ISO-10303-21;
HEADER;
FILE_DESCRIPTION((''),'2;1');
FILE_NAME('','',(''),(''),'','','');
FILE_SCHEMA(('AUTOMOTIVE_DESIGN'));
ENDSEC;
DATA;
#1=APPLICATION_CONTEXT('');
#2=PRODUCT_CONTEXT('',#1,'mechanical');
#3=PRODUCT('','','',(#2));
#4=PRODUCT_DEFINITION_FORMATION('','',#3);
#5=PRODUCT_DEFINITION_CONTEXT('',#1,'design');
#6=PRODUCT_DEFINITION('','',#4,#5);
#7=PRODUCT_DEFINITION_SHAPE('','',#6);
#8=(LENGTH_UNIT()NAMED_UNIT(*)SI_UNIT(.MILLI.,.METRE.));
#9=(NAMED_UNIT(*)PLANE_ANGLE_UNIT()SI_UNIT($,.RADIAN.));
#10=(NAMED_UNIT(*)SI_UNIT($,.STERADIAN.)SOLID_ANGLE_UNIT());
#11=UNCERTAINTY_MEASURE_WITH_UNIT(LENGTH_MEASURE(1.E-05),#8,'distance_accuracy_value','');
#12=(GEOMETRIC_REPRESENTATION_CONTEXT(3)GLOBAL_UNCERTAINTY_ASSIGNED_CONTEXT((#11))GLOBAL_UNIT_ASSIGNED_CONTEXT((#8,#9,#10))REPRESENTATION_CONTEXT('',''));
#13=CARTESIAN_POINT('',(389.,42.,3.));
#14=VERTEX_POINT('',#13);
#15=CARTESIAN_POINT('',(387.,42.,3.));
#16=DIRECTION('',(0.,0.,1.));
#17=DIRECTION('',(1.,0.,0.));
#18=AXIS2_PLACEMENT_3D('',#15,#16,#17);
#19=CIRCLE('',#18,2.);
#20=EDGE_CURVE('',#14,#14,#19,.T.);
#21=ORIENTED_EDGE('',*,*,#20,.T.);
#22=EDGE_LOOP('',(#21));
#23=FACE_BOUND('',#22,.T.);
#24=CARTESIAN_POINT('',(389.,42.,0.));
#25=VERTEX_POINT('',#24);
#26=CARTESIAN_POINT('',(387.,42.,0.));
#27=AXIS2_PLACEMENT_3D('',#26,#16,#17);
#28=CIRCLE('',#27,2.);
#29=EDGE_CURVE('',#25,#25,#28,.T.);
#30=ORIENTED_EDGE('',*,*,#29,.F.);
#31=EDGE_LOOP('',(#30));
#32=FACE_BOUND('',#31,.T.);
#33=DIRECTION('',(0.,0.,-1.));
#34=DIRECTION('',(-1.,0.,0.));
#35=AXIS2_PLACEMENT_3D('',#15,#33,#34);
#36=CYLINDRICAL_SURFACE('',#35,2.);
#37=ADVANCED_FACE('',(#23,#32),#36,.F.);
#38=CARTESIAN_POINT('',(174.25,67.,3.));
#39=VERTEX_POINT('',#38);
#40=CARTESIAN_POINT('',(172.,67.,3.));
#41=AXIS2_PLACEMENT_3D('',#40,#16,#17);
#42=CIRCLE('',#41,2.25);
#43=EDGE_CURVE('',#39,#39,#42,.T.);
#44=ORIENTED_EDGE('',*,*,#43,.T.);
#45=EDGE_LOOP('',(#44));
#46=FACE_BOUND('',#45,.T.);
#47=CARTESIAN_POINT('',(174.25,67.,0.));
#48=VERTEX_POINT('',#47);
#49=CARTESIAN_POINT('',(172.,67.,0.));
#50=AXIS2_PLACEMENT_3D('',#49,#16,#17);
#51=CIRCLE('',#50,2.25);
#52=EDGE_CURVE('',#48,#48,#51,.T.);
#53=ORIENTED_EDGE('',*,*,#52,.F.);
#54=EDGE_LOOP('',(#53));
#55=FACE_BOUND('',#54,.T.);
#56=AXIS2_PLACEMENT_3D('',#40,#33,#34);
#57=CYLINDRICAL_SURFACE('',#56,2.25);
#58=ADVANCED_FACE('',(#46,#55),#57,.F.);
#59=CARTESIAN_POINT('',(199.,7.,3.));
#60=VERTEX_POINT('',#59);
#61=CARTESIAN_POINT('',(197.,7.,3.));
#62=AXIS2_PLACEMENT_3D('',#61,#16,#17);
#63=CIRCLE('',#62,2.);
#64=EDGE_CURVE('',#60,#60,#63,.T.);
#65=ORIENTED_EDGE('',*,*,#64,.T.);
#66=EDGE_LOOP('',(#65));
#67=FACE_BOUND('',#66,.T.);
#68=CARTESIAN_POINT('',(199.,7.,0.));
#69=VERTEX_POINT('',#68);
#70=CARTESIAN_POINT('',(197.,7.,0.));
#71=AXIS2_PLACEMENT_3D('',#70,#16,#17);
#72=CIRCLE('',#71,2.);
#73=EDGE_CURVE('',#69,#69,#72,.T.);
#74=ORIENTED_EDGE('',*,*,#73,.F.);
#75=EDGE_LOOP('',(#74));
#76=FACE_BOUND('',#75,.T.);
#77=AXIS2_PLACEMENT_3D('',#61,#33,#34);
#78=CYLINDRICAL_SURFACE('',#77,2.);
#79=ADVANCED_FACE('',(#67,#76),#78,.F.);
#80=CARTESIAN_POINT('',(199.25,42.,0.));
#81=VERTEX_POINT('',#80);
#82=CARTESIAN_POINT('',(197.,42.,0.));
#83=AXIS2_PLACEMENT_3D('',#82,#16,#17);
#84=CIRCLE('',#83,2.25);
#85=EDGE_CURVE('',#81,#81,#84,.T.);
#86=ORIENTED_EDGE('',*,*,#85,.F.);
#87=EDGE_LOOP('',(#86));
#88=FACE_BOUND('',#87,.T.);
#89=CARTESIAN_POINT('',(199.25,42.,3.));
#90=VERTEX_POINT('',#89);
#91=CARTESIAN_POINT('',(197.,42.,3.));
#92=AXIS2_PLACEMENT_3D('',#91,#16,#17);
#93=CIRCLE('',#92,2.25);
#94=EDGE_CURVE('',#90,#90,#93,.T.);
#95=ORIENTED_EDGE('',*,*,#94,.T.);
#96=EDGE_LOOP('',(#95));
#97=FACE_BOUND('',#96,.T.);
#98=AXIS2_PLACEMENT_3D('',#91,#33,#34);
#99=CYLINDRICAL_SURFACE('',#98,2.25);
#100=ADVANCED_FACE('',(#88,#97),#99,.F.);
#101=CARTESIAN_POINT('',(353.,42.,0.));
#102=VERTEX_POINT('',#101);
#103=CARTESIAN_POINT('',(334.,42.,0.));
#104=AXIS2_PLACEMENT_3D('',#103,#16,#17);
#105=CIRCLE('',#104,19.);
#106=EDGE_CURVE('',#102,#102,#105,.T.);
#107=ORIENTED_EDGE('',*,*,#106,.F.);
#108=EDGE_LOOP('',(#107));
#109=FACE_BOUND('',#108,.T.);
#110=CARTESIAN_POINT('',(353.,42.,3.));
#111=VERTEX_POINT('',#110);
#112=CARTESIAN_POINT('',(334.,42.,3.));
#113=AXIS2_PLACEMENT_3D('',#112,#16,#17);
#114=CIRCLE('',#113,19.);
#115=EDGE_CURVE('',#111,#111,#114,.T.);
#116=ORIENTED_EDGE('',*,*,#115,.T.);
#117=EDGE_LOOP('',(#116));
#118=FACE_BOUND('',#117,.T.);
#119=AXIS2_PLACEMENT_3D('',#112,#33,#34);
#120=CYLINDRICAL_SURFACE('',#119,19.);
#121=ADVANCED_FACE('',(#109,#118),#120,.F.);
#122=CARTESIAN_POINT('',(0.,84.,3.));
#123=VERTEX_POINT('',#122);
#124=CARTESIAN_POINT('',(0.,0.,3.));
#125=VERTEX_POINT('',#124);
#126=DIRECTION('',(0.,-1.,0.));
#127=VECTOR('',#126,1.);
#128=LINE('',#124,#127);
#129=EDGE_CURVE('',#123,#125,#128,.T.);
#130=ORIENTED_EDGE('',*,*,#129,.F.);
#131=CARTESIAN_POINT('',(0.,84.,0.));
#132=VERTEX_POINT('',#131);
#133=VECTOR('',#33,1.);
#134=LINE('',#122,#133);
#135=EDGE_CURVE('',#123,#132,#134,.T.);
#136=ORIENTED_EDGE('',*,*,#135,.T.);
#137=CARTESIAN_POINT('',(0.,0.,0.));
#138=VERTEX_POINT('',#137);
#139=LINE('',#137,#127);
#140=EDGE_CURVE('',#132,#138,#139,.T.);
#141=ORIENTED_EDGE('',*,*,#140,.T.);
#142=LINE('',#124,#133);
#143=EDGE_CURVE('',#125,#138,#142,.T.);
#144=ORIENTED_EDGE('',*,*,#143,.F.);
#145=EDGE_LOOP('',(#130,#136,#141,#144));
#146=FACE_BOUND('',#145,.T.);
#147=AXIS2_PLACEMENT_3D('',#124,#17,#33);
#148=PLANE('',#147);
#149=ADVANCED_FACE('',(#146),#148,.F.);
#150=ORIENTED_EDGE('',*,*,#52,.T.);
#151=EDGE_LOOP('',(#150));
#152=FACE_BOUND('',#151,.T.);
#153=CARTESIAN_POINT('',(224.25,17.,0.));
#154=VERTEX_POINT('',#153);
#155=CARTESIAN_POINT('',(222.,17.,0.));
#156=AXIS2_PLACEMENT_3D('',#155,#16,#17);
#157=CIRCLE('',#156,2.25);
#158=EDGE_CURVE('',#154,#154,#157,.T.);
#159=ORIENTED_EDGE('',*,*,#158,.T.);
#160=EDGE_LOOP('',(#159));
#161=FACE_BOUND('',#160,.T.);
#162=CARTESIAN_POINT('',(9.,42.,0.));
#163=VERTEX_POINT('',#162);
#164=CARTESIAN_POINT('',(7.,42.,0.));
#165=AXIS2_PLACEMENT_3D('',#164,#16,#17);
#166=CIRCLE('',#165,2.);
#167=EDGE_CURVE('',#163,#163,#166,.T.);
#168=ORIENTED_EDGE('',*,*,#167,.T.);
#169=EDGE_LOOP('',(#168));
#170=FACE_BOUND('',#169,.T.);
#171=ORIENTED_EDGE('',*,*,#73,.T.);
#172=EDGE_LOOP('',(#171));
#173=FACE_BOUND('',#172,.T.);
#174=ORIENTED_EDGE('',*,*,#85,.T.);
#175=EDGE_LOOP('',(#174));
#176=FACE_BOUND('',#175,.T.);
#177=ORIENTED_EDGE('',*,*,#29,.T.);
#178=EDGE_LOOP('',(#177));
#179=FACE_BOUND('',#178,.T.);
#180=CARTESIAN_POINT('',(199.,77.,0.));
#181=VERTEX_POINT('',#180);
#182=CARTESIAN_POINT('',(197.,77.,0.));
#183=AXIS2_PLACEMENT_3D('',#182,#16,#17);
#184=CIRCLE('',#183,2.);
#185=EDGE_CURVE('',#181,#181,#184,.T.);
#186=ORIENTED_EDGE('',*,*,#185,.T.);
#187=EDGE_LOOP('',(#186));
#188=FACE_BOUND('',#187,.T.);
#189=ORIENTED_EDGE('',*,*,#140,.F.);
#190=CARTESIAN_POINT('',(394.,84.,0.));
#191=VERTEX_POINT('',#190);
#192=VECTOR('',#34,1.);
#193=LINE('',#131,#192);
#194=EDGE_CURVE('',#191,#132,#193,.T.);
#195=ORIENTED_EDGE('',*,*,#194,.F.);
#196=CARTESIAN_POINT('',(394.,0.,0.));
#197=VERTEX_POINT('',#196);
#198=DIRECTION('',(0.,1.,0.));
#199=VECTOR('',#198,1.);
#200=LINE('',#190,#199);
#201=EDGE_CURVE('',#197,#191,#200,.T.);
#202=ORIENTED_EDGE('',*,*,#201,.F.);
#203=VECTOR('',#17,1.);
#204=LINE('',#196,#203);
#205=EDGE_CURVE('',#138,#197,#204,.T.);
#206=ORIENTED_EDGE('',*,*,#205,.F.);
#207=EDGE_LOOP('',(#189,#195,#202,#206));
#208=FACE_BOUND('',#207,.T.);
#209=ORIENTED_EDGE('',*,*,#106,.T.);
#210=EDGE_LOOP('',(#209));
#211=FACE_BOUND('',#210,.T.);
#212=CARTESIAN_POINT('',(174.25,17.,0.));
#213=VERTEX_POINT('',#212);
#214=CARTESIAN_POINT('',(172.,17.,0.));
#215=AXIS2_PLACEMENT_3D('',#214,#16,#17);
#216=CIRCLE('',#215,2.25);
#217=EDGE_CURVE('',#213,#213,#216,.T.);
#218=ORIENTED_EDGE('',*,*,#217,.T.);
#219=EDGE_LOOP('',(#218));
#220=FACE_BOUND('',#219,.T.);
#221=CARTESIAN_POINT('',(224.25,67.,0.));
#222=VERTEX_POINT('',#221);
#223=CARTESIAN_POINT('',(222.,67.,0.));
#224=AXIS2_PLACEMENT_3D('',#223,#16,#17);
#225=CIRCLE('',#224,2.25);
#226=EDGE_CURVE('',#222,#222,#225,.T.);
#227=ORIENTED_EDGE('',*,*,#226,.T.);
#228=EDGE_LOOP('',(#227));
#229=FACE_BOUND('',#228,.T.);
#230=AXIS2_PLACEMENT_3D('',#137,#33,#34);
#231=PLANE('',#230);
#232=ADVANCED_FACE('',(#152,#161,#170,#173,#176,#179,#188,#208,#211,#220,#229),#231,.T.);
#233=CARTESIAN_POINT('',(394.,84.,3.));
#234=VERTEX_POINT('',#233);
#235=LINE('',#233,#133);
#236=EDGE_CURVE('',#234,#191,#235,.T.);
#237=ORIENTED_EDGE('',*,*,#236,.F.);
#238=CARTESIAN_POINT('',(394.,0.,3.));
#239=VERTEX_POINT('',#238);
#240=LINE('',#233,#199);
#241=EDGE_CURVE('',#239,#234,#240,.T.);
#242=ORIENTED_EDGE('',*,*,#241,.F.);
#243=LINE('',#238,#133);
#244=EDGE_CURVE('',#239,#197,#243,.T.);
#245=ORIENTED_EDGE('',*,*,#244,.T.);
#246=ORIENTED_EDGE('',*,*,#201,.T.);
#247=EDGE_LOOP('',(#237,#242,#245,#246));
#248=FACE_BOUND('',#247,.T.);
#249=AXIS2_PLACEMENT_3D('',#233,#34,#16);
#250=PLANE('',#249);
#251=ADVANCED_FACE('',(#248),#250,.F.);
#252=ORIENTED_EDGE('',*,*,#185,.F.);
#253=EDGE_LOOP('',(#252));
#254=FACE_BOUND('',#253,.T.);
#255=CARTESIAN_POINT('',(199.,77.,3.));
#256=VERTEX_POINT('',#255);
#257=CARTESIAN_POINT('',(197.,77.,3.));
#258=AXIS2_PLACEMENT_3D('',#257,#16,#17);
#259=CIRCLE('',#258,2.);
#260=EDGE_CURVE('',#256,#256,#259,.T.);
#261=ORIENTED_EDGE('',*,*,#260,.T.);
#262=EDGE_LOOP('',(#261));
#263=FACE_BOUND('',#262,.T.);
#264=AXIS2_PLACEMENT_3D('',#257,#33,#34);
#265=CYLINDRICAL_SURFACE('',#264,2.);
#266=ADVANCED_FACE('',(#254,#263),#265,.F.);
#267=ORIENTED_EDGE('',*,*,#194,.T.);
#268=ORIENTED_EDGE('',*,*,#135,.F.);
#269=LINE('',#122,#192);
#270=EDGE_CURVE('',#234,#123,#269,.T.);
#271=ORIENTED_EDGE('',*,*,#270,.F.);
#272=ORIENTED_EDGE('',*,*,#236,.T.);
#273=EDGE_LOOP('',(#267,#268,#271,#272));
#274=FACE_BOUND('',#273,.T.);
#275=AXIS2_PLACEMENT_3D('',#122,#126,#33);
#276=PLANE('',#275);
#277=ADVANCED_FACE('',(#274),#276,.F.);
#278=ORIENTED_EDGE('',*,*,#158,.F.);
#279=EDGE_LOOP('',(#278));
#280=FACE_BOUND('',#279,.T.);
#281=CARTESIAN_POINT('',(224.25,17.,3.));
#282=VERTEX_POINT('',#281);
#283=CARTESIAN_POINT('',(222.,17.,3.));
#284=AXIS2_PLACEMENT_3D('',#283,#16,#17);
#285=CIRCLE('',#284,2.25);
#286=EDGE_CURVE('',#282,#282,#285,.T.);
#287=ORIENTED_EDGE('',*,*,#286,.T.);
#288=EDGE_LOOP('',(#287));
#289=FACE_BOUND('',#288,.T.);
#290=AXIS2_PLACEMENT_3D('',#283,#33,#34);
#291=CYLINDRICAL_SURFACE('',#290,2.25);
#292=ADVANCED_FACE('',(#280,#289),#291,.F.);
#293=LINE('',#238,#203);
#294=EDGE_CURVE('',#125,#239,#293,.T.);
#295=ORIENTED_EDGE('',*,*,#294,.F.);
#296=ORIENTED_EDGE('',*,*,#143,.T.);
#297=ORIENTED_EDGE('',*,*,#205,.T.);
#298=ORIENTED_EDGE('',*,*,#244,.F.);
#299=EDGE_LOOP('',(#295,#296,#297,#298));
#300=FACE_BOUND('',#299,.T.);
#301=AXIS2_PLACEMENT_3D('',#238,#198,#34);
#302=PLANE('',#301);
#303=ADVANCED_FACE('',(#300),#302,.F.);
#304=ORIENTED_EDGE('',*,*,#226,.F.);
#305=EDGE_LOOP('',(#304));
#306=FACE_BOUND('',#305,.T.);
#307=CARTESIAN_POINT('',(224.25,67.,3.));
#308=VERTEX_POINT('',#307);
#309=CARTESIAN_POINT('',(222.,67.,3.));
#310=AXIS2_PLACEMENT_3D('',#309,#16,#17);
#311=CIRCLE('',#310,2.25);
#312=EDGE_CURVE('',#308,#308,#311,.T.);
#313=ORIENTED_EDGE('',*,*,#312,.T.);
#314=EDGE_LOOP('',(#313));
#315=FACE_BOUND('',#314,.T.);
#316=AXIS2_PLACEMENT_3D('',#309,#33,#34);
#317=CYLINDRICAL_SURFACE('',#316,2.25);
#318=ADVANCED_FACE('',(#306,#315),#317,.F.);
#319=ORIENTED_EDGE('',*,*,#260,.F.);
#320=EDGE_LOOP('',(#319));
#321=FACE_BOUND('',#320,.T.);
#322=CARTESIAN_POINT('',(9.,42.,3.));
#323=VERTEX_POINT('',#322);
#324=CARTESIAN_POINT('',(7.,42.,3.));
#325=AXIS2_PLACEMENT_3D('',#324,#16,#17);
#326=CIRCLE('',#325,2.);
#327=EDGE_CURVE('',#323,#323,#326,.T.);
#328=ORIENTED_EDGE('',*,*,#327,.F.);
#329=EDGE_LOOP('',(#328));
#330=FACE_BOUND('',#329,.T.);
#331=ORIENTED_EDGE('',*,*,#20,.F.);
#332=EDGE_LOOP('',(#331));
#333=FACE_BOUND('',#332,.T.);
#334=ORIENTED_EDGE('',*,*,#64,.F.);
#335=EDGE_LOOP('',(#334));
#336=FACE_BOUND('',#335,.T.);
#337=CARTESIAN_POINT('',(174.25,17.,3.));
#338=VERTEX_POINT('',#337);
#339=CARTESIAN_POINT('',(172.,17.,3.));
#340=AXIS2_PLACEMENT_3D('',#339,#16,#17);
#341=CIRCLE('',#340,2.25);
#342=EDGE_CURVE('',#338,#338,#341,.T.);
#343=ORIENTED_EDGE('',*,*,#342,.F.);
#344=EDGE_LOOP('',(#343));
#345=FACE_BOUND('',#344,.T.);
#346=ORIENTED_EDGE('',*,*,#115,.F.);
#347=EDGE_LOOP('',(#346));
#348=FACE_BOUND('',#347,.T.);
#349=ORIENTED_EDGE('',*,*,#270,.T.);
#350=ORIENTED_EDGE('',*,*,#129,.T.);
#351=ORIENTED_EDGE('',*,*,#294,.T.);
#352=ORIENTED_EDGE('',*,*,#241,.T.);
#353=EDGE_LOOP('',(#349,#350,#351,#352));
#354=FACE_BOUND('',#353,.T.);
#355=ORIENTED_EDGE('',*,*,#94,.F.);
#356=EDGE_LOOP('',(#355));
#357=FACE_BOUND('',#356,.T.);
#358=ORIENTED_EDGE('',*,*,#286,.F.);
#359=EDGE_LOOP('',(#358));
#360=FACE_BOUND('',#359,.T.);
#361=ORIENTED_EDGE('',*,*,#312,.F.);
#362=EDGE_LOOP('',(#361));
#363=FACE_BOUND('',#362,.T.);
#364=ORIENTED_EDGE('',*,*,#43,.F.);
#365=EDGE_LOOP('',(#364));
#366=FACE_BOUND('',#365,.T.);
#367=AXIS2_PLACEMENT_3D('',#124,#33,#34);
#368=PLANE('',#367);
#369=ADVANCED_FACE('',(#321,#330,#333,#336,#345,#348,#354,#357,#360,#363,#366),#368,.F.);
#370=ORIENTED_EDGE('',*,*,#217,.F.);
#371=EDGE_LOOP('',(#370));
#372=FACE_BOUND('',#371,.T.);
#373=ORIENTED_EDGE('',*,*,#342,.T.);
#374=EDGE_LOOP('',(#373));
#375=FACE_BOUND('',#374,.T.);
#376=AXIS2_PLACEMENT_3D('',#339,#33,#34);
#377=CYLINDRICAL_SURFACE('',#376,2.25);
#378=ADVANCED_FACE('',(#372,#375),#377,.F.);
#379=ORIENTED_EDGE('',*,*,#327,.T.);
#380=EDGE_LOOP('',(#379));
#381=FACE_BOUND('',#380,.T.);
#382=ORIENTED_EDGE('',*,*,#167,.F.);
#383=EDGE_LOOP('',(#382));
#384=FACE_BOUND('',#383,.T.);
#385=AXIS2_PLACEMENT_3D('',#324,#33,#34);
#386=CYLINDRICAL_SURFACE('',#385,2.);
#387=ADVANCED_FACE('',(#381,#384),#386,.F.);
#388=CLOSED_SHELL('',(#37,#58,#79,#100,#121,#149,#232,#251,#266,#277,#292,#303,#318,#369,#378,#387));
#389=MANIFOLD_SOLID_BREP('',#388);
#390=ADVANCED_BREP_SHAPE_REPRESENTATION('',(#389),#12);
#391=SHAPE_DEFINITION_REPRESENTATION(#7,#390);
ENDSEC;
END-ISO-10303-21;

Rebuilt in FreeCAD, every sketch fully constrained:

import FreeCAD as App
import Part
import Sketcher

V = App.Vector
Q = App.Units.Quantity

doc = App.newDocument("Part")
body = doc.addObject("PartDesign::Body", "Body")

# Sketch on XY plane
sketch1 = body.newObject("Sketcher::SketchObject", "Sketch")
sketch1.AttachmentSupport = (doc.getObject("XY_Plane"), [""])
sketch1.MapMode = "FlatFace"
sketch1.addGeometry(Part.LineSegment(V(0, 84, 0), V(0, 0, 0)), False)
sketch1.addGeometry(Part.LineSegment(V(0, 0, 0), V(394, 0, 0)), False)
sketch1.addGeometry(Part.LineSegment(V(394, 0, 0), V(394, 84, 0)), False)
sketch1.addGeometry(Part.LineSegment(V(394, 84, 0), V(0, 84, 0)), False)
sketch1.addGeometry(Part.Circle(V(172, 17, 0), V(0, 0, 1), 2.2), False)
sketch1.addGeometry(Part.Circle(V(197, 7, 0), V(0, 0, 1), 2), False)
sketch1.addGeometry(Part.Circle(V(222, 17, 0), V(0, 0, 1), 2.2), False)
sketch1.addGeometry(Part.Circle(V(7, 42, 0), V(0, 0, 1), 2), False)
sketch1.addGeometry(Part.Circle(V(172, 67, 0), V(0, 0, 1), 2.2), False)
sketch1.addGeometry(Part.Circle(V(197, 42, 0), V(0, 0, 1), 2.2), False)
sketch1.addGeometry(Part.Circle(V(334, 42, 0), V(0, 0, 1), 19), False)
sketch1.addGeometry(Part.Circle(V(387, 42, 0), V(0, 0, 1), 2), False)
sketch1.addGeometry(Part.Circle(V(222, 67, 0), V(0, 0, 1), 2.2), False)
sketch1.addGeometry(Part.Circle(V(197, 77, 0), V(0, 0, 1), 2), False)
sketch1.addConstraint(Sketcher.Constraint("Coincident", 0, 2, 1, 1))
sketch1.addConstraint(Sketcher.Constraint("Coincident", 1, 2, 2, 1))
sketch1.addConstraint(Sketcher.Constraint("Coincident", 2, 2, 3, 1))
sketch1.addConstraint(Sketcher.Constraint("Coincident", 3, 2, 0, 1))
sketch1.addConstraint(Sketcher.Constraint("Vertical", 0))
sketch1.addConstraint(Sketcher.Constraint("Horizontal", 1))
sketch1.addConstraint(Sketcher.Constraint("Vertical", 2))
sketch1.addConstraint(Sketcher.Constraint("Horizontal", 3))
sketch1.addConstraint(Sketcher.Constraint("Coincident", 0, 2, -1, 1))
sketch1.addConstraint(Sketcher.Constraint("Equal", 4, 6))
sketch1.addConstraint(Sketcher.Constraint("Equal", 5, 7))
sketch1.addConstraint(Sketcher.Constraint("Equal", 6, 8))
sketch1.addConstraint(Sketcher.Constraint("Equal", 8, 9))
sketch1.addConstraint(Sketcher.Constraint("Equal", 7, 11))
sketch1.addConstraint(Sketcher.Constraint("Equal", 9, 12))
sketch1.addConstraint(Sketcher.Constraint("Equal", 11, 13))
sketch1.addConstraint(Sketcher.Constraint("Horizontal", 4, 3, 6, 3))
sketch1.addConstraint(Sketcher.Constraint("Horizontal", 7, 3, 9, 3))
sketch1.addConstraint(Sketcher.Constraint("Horizontal", 9, 3, 10, 3))
sketch1.addConstraint(Sketcher.Constraint("Horizontal", 10, 3, 11, 3))
sketch1.addConstraint(Sketcher.Constraint("Horizontal", 8, 3, 12, 3))
sketch1.addConstraint(Sketcher.Constraint("Vertical", 4, 3, 8, 3))
sketch1.addConstraint(Sketcher.Constraint("Vertical", 5, 3, 9, 3))
sketch1.addConstraint(Sketcher.Constraint("Vertical", 6, 3, 12, 3))
sketch1.addConstraint(Sketcher.Constraint("Vertical", 9, 3, 13, 3))
sketch1.addConstraint(Sketcher.Constraint("Diameter", 5, Q("4 mm")))
sketch1.addConstraint(Sketcher.Constraint("Diameter", 10, Q("38 mm")))
sketch1.addConstraint(Sketcher.Constraint("Diameter", 4, Q("4.5 mm")))
sketch1.addConstraint(Sketcher.Constraint("DistanceX", 1, 1, 1, 2, Q("394 mm")))
sketch1.addConstraint(Sketcher.Constraint("DistanceY", 0, 2, 0, 1, Q("84 mm")))
sketch1.addConstraint(Sketcher.Constraint("DistanceX", -1, 1, 4, 3, Q("172 mm")))
sketch1.addConstraint(Sketcher.Constraint("DistanceY", -1, 1, 4, 3, Q("17 mm")))
sketch1.addConstraint(Sketcher.Constraint("DistanceX", -1, 1, 5, 3, Q("197 mm")))
sketch1.addConstraint(Sketcher.Constraint("DistanceY", -1, 1, 5, 3, Q("7 mm")))
sketch1.addConstraint(Sketcher.Constraint("DistanceX", -1, 1, 6, 3, Q("222 mm")))
sketch1.addConstraint(Sketcher.Constraint("DistanceX", -1, 1, 7, 3, Q("7 mm")))
sketch1.addConstraint(Sketcher.Constraint("DistanceY", -1, 1, 7, 3, Q("42 mm")))
sketch1.addConstraint(Sketcher.Constraint("DistanceY", -1, 1, 8, 3, Q("67 mm")))
sketch1.addConstraint(Sketcher.Constraint("DistanceX", -1, 1, 10, 3, Q("334 mm")))
sketch1.addConstraint(Sketcher.Constraint("DistanceX", -1, 1, 11, 3, Q("387 mm")))
sketch1.addConstraint(Sketcher.Constraint("DistanceY", -1, 1, 13, 3, Q("77 mm")))
pad1 = body.newObject("PartDesign::Pad", "Pad")
pad1.Profile = sketch1
pad1.Length = 3

doc.recompute()
